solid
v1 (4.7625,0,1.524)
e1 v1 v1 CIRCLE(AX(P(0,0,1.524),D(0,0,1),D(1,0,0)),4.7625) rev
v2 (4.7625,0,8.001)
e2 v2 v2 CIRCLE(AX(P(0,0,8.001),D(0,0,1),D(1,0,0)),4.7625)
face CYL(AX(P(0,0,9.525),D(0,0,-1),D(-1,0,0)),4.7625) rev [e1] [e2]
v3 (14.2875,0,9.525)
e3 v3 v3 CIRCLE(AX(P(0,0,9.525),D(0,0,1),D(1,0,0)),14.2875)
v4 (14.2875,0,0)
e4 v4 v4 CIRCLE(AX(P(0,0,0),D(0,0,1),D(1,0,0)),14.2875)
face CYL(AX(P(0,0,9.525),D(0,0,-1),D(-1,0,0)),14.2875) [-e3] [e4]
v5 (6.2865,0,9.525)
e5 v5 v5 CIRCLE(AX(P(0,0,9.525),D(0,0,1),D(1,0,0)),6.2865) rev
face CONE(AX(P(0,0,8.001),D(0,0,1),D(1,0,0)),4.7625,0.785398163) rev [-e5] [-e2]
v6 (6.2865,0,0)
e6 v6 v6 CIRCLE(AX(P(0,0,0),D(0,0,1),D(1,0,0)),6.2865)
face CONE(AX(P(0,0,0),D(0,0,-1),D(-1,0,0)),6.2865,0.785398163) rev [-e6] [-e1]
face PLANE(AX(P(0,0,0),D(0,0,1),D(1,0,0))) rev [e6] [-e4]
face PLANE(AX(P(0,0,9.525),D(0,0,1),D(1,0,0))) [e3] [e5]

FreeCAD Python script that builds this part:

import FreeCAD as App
import Part
import Sketcher
Q = App.Units.Quantity


def edges_at(feature, points):
    """Names of the edges that pass closest to the given points."""
    edges = feature.Shape.Edges
    near = lambda p: min(range(len(edges)), key=lambda i: edges[i].distToShape(Part.Vertex(*p))[0])
    return sorted({f"Edge{near(p) + 1}" for p in points})

doc = App.newDocument("Part")
params = doc.addObject("Spreadsheet::Sheet", "Params")
for row, (alias, value) in enumerate([
    ("sketch1_diameter", "1.125 in"),
    ("sketch1_diameter2", "0.375 in"),
    ("pad1_length", "0.375 in"),
    ("chamfer_size", "0.06 in"),
], start=1):
    params.set(f"A{row}", alias)
    params.set(f"B{row}", "=" + value)
    params.setAlias(f"B{row}", alias)

body = doc.addObject("PartDesign::Body", "Body")

sketch1 = body.newObject("Sketcher::SketchObject", "Sketch")
sketch1.AttachmentSupport = (doc.getObject("XY_Plane"), [""])
sketch1.MapMode = "FlatFace"
sketch1.addGeometry([
    Part.Circle(App.Vector(0, 0, 0), App.Vector(0, 0, 1), 14.2875),
    Part.Circle(App.Vector(0, 0, 0), App.Vector(0, 0, 1), 4.7625),
], False)
sketch1.addConstraint([
    Sketcher.Constraint("Coincident", 0, 3, -1, 1),
    Sketcher.Constraint("Coincident", 1, 3, -1, 1),
    Sketcher.Constraint("Diameter", 0, Q("1.125 in")),
    Sketcher.Constraint("Diameter", 1, Q("0.375 in")),
])
sketch1.setExpression("Constraints[2]", "Params.sketch1_diameter")
sketch1.setExpression("Constraints[3]", "Params.sketch1_diameter2")
pad1 = body.newObject("PartDesign::Pad", "Pad")
pad1.Profile = sketch1
pad1.setExpression("Length", "Params.pad1_length")
doc.recompute()

chamfer = body.newObject("PartDesign::Chamfer", "Chamfer")
chamfer.Base = (pad1, edges_at(pad1, [(-4.763, 0, 0), (-4.763, 0, 9.525)]))
chamfer.setExpression("Size", "Params.chamfer_size")

doc.recompute()
